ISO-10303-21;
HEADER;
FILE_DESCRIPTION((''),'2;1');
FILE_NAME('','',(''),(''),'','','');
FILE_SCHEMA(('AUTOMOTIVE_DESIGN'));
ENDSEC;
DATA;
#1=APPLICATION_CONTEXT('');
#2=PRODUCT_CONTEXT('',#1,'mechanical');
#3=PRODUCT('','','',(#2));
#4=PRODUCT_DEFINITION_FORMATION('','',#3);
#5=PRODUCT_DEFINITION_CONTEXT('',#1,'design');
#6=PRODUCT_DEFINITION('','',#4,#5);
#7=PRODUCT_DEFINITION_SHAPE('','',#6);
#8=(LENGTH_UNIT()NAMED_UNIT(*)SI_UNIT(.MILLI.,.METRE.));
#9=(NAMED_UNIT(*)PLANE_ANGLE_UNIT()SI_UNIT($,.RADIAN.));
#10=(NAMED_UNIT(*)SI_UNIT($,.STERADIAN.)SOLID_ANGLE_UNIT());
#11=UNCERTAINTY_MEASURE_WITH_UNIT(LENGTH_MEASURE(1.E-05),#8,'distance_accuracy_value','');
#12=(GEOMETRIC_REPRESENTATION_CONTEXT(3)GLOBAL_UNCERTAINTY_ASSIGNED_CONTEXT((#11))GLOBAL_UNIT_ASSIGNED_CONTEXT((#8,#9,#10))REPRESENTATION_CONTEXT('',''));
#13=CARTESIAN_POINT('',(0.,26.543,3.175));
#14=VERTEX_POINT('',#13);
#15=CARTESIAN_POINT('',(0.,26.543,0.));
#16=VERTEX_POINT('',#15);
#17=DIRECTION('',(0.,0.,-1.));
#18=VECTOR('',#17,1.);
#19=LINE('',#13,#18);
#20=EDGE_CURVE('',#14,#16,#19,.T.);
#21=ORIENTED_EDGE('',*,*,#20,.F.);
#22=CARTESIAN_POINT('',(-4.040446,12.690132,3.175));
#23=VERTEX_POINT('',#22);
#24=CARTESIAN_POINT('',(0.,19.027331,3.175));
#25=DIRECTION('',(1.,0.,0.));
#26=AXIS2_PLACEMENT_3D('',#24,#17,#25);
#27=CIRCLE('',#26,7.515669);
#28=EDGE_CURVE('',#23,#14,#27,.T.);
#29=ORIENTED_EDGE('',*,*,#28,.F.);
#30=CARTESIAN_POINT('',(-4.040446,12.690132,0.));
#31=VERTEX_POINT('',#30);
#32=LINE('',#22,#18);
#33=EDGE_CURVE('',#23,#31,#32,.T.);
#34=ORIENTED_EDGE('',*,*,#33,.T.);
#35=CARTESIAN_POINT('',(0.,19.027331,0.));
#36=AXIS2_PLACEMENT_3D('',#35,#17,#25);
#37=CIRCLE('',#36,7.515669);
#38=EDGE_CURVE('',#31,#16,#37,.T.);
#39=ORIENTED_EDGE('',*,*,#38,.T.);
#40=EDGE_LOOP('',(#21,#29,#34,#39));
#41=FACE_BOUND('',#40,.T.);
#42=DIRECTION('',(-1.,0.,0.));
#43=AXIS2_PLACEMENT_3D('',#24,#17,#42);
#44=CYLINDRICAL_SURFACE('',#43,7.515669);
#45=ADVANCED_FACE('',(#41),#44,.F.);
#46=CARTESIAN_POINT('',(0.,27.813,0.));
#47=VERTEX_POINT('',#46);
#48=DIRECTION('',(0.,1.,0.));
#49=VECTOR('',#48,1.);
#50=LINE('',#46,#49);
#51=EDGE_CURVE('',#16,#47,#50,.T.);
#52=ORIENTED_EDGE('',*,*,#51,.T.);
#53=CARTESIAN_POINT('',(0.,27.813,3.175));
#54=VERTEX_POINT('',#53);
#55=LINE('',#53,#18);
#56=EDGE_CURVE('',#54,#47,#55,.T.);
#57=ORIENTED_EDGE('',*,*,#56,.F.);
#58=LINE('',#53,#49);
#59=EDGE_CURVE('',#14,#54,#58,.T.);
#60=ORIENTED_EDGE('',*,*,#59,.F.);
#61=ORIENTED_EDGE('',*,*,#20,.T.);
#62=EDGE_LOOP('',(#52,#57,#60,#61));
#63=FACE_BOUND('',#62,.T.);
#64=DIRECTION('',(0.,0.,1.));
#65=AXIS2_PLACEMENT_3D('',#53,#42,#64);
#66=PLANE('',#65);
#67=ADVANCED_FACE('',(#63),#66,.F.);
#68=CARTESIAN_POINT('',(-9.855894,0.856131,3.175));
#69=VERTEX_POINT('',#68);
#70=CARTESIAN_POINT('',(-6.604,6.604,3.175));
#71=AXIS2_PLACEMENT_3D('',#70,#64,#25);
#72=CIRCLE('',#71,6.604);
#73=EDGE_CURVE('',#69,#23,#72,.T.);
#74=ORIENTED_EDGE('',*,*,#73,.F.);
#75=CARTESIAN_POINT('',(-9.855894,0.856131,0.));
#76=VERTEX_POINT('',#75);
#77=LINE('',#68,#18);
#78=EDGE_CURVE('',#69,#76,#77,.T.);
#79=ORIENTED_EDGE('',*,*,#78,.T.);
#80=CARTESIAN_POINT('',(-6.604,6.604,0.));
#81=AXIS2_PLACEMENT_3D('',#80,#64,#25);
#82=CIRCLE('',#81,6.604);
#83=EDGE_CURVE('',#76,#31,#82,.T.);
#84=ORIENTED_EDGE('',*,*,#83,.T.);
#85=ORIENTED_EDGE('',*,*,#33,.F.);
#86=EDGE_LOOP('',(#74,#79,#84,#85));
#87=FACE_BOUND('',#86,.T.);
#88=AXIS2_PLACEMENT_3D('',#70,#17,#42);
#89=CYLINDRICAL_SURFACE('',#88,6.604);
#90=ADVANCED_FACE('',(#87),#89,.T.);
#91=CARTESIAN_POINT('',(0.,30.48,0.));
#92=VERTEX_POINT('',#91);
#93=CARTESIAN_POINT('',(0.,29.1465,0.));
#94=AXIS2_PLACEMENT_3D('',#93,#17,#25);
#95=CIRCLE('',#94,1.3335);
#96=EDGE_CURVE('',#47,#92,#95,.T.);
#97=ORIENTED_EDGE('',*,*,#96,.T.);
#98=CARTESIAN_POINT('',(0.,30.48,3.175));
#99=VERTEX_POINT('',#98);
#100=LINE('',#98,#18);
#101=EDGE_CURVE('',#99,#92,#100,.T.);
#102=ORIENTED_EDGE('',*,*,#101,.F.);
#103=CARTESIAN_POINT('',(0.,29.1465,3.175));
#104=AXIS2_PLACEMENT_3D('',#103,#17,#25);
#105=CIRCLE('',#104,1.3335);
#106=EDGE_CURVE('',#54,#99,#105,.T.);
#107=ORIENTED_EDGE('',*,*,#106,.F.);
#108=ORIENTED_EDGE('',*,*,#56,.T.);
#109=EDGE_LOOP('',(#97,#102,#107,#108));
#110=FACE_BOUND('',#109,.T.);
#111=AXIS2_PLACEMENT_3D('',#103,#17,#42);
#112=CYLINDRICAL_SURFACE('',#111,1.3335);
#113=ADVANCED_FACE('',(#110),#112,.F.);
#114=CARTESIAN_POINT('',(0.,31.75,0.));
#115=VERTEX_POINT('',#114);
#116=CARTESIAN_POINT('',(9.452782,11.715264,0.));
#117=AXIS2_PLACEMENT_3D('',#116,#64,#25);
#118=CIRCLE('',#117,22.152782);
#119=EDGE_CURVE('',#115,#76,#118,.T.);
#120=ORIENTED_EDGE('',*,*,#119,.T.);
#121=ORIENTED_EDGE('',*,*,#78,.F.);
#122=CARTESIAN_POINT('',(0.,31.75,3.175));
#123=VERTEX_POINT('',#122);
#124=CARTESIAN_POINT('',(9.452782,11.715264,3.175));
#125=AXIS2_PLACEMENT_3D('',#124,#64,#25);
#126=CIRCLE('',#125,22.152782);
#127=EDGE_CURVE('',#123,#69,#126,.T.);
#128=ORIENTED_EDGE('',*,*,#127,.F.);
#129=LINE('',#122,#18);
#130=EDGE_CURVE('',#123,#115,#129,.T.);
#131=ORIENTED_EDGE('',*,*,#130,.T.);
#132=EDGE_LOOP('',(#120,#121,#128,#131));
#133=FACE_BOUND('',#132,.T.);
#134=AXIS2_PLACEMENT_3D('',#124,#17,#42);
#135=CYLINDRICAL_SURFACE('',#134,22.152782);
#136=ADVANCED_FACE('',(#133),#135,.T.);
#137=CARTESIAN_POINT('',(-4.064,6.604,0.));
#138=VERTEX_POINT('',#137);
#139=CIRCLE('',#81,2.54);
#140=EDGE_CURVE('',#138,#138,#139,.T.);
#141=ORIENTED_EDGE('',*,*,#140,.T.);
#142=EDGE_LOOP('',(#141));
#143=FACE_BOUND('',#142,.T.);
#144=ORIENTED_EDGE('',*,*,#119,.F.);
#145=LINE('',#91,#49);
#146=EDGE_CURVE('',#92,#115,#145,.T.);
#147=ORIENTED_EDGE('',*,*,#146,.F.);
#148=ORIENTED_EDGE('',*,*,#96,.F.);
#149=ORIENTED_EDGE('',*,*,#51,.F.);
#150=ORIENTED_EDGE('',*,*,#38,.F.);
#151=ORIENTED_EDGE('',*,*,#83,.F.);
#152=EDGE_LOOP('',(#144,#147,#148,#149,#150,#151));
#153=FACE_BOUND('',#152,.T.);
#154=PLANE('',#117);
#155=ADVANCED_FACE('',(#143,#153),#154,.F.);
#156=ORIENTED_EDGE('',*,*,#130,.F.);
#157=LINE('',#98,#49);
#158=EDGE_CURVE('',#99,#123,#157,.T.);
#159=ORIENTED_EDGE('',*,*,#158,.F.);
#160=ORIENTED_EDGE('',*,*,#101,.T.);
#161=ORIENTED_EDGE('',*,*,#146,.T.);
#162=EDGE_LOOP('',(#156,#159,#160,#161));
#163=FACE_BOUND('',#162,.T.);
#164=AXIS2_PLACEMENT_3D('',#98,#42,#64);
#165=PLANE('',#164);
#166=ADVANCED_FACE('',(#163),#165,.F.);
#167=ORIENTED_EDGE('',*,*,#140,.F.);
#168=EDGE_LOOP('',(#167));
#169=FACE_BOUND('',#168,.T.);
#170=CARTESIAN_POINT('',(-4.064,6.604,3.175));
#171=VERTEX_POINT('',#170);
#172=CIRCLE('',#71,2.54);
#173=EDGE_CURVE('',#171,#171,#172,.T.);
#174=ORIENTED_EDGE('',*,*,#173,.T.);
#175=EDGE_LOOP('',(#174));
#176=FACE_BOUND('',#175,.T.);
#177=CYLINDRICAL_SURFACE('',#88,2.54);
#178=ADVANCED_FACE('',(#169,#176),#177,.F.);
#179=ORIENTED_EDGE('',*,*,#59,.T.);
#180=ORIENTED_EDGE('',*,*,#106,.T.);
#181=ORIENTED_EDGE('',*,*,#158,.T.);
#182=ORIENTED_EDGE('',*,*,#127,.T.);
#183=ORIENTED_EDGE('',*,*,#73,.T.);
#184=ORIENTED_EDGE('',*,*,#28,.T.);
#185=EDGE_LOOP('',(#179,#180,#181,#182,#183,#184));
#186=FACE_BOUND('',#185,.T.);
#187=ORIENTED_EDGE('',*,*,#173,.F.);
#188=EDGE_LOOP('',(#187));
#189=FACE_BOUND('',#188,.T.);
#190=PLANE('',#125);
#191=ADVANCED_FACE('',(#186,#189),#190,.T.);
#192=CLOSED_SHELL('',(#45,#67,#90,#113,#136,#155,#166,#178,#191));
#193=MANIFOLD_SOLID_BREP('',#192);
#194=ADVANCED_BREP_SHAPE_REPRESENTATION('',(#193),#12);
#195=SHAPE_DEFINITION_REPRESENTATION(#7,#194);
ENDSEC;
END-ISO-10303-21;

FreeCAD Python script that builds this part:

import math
import FreeCAD as App
import Part
import Sketcher
Q = App.Units.Quantity

doc = App.newDocument("Part")
body = doc.addObject("PartDesign::Body", "Body")

# Sketch on XY plane
sketch1 = doc.addObject("Sketcher::SketchObject", "Sketch")
body.addObject(sketch1)
sketch1.AttachmentSupport = (doc.XY_Plane, [""])
sketch1.MapMode = "FlatFace"
sketch1.addGeometry([
    Part.LineSegment(App.Vector(0, 26.5, 0), App.Vector(0, 27.8, 0)),  # 0
    Part.ArcOfCircle(Part.Circle(App.Vector(0, 29.1, 0), App.Vector(0, 0, 1), 1.3), math.radians(90), math.radians(270)),  # 1
    Part.LineSegment(App.Vector(0, 30.5, 0), App.Vector(0, 31.8, 0)),  # 2
    Part.ArcOfCircle(Part.Circle(App.Vector(9.5, 11.7, 0), App.Vector(0, 0, 1), 22.2), math.radians(115), math.radians(209)),  # 3
    Part.ArcOfCircle(Part.Circle(App.Vector(-6.6, 6.6, 0), App.Vector(0, 0, 1), 6.6), math.radians(-119), math.radians(67)),  # 4
    Part.ArcOfCircle(Part.Circle(App.Vector(0, 19, 0), App.Vector(0, 0, 1), 7.5), math.radians(90), math.radians(237)),  # 5
    Part.Circle(App.Vector(-6.6, 6.6, 0), App.Vector(0, 0, 1), 2.5),  # 6
], False)
sketch1.addConstraint([
    Sketcher.Constraint("Coincident", 0, 2, 1, 2),
    Sketcher.Constraint("Coincident", 1, 1, 2, 1),
    Sketcher.Constraint("Coincident", 2, 2, 3, 1),
    Sketcher.Constraint("Coincident", 3, 2, 4, 1),
    Sketcher.Constraint("Coincident", 4, 2, 5, 2),
    Sketcher.Constraint("Coincident", 5, 1, 0, 1),
    Sketcher.Constraint("Vertical", 0),
    Sketcher.Constraint("Vertical", 2),
    Sketcher.Constraint("Coincident", 6, 3, 4, 3),
    Sketcher.Constraint("PointOnObject", 1, 3, -2),
    Sketcher.Constraint("PointOnObject", 5, 3, -2),
    Sketcher.Constraint("PointOnObject", 0, 2, -2),
    Sketcher.Constraint("PointOnObject", 1, 1, -2),
    Sketcher.Constraint("Equal", 0, 2),
    Sketcher.Constraint("Diameter", 6, Q("0.2 in")),
    Sketcher.Constraint("Radius", 4, Q("0.26 in")),
    Sketcher.Constraint("DistanceY", 0, 1, 0, 2, Q("0.05 in")),
    Sketcher.Constraint("DistanceY", -1, 1, 1, 1, Q("1.2 in")),
    Sketcher.Constraint("Radius", 1, Q("0.0525 in")),
    Sketcher.Constraint("DistanceX", 4, 3, -1, 1, Q("0.26 in")),
    Sketcher.Constraint("DistanceY", -1, 1, 4, 3, Q("0.26 in")),
    Sketcher.Constraint("Radius", 3, 22.152782),
    Sketcher.Constraint("Radius", 5, 7.515669),
    Sketcher.Constraint("DistanceY", 3, 2, 5, 3, 18.1712),
])
pad1 = doc.addObject("PartDesign::Pad", "Pad")
body.addObject(pad1)
pad1.Profile = sketch1
pad1.Length = Q("0.125 in")

doc.recompute()
